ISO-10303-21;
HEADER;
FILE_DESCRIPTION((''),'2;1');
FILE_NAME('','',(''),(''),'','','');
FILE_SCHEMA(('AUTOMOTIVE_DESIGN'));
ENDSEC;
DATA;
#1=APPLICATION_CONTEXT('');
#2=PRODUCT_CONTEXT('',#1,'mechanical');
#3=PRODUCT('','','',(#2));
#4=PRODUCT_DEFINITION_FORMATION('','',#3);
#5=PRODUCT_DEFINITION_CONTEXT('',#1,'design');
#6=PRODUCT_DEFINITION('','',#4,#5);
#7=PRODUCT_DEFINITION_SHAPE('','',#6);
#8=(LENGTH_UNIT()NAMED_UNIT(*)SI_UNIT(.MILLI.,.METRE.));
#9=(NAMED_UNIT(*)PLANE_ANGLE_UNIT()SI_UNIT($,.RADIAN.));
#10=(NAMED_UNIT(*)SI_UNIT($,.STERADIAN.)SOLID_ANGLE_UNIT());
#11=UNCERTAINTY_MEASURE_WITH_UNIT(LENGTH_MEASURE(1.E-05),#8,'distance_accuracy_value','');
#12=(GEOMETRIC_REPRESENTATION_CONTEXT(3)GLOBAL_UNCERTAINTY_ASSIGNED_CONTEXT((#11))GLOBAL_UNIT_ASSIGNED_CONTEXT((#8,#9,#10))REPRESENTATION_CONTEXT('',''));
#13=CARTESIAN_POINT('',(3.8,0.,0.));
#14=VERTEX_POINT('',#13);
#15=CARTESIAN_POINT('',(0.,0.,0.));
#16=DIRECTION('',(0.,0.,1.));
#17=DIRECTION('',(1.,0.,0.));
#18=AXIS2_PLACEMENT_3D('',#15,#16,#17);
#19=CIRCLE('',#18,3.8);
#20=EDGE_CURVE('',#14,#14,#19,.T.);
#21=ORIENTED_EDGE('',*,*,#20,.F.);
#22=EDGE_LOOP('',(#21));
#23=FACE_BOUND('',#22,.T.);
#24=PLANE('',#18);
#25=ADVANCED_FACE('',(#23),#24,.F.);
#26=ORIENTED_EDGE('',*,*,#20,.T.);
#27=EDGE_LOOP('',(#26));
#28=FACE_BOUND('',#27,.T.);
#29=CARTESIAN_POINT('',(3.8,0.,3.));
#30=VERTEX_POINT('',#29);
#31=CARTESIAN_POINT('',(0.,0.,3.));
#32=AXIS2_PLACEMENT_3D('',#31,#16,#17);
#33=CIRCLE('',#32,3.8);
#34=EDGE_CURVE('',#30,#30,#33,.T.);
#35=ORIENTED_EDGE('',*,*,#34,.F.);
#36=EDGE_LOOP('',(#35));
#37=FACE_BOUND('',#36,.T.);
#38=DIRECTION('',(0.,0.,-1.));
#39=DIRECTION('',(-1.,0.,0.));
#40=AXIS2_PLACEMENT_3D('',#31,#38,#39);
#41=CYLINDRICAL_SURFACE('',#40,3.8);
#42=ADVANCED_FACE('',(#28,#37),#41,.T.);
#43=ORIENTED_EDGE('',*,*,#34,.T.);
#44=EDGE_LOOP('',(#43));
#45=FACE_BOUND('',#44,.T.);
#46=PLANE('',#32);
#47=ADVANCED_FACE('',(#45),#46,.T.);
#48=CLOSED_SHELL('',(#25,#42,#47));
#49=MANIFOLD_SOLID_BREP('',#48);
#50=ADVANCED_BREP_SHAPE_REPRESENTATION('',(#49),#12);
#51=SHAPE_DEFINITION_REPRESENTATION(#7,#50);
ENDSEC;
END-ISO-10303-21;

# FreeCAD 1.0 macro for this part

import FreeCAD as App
import Part
import Sketcher

doc = App.newDocument("Part")
body = doc.addObject("PartDesign::Body", "Body")

# Sketch on XY plane
sketch1 = body.newObject("Sketcher::SketchObject", "Sketch")
sketch1.AttachmentSupport = (doc.getObject("XY_Plane"), [""])
sketch1.MapMode = "FlatFace"
sketch1.addGeometry(Part.Circle(App.Vector(0, 0, 0), App.Vector(0, 0, 1), 3.8), False)
sketch1.addConstraint(Sketcher.Constraint("Coincident", 0, 3, -1, 1))
sketch1.addConstraint(Sketcher.Constraint("Diameter", 0, 7.6))
pad1 = body.newObject("PartDesign::Pad", "Pad")
pad1.Profile = sketch1
pad1.Length = 3

doc.recompute()
